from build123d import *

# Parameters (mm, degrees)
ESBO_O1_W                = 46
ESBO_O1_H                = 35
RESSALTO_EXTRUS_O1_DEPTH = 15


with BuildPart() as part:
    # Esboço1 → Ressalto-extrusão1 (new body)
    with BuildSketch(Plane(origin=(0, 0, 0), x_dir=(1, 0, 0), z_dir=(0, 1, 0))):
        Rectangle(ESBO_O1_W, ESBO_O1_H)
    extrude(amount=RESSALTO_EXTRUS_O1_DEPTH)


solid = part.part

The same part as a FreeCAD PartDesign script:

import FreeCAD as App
import Part
import Sketcher


def add_polygon(sketch, points):
    """Adds a closed chain of lines whose ends are joined by coincident constraints."""
    first, n = sketch.GeometryCount, len(points)
    for a, b in zip(points, points[1:] + points[:1]):
        sketch.addGeometry(Part.LineSegment(App.Vector(*a, 0), App.Vector(*b, 0)), False)
    for i in range(n):
        sketch.addConstraint(Sketcher.Constraint("Coincident", first + i, 2, first + (i + 1) % n, 1))

doc = App.newDocument("Part")
body = doc.addObject("PartDesign::Body", "Body")

sketch1 = body.newObject("Sketcher::SketchObject", "Sketch")
sketch1.AttachmentSupport = (doc.getObject("XZ_Plane"), [""])
sketch1.MapMode = "FlatFace"
add_polygon(sketch1, [(-23, -17.5), (-23, 17.5), (23, 17.5), (23, -17.5)])
sketch1.addConstraint([
    Sketcher.Constraint("Vertical", 0),
    Sketcher.Constraint("Horizontal", 1),
    Sketcher.Constraint("Vertical", 2),
    Sketcher.Constraint("Horizontal", 3),
    Sketcher.Constraint("Symmetric", 0, 2, 2, 2, -1, 1),
    Sketcher.Constraint("DistanceX", 1, 1, 1, 2, 46.0),
    Sketcher.Constraint("DistanceY", 0, 1, 0, 2, 35.0),
])
pad1 = body.newObject("PartDesign::Pad", "Pad")
pad1.Profile = sketch1
pad1.Length = 15
pad1.Reversed = True

doc.recompute()
